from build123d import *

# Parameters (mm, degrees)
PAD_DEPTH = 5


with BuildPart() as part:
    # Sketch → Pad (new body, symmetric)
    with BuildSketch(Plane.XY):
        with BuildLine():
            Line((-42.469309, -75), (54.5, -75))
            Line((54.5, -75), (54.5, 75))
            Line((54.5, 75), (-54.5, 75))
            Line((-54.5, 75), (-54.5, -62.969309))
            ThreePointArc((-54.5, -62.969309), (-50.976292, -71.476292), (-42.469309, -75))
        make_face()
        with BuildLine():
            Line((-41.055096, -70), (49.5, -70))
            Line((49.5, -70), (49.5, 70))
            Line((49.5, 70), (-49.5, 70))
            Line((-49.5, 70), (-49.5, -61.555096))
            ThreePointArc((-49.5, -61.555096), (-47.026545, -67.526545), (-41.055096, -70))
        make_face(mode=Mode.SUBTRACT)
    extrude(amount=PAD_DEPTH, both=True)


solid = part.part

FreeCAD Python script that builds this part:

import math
import FreeCAD as App
import Part
import Sketcher
from FreeCAD import Vector
Q = App.Units.Quantity

doc = App.newDocument("Part")
body = doc.addObject("PartDesign::Body", "Body")

# Sketch on XY plane
sketch1 = body.newObject("Sketcher::SketchObject", "Sketch")
sketch1.AttachmentSupport = (doc.getObject("XY_Plane"), [""])
sketch1.MapMode = "FlatFace"
sketch1.addGeometry([
    Part.LineSegment(Vector(-42, -75, 0), Vector(54, -75, 0)),  # 0
    Part.LineSegment(Vector(54, -75, 0), Vector(54, 75, 0)),  # 1
    Part.LineSegment(Vector(54, 75, 0), Vector(-54, 75, 0)),  # 2
    Part.LineSegment(Vector(-54, 75, 0), Vector(-54, -63, 0)),  # 3
    Part.ArcOfCircle(Part.Circle(Vector(-42, -63, 0), Vector(0, 0, 1), 12), math.radians(-180), math.radians(-90)),  # 4
    Part.LineSegment(Vector(50, -70, 0), Vector(-41, -70, 0)),  # 5
    Part.ArcOfCircle(Part.Circle(Vector(-41, -62, 0), Vector(0, 0, 1), 8), math.radians(180), math.radians(270)),  # 6
    Part.LineSegment(Vector(-50, -62, 0), Vector(-50, 70, 0)),  # 7
    Part.LineSegment(Vector(-50, 70, 0), Vector(50, 70, 0)),  # 8
    Part.LineSegment(Vector(50, 70, 0), Vector(50, -70, 0)),  # 9
], False)
sketch1.addConstraint([
    Sketcher.Constraint("Coincident", 0, 2, 1, 1),
    Sketcher.Constraint("Coincident", 1, 2, 2, 1),
    Sketcher.Constraint("Coincident", 2, 2, 3, 1),
    Sketcher.Constraint("Tangent", 3, 2, 4, 1),
    Sketcher.Constraint("Tangent", 4, 2, 0, 1),
    Sketcher.Constraint("Tangent", 5, 2, 6, 2),
    Sketcher.Constraint("Tangent", 6, 1, 7, 1),
    Sketcher.Constraint("Coincident", 7, 2, 8, 1),
    Sketcher.Constraint("Coincident", 8, 2, 9, 1),
    Sketcher.Constraint("Coincident", 9, 2, 5, 1),
    Sketcher.Constraint("Horizontal", 0),
    Sketcher.Constraint("Vertical", 1),
    Sketcher.Constraint("Horizontal", 2),
    Sketcher.Constraint("Vertical", 3),
    Sketcher.Constraint("Horizontal", 5),
    Sketcher.Constraint("Vertical", 7),
    Sketcher.Constraint("Horizontal", 8),
    Sketcher.Constraint("Vertical", 9),
    Sketcher.Constraint("Symmetric", 0, 2, 2, 2, -1, 1),
    Sketcher.Constraint("Symmetric", 7, 2, 9, 2, -1, 1),
    Sketcher.Constraint("DistanceX", 2, 2, 2, 1, Q("109 mm")),
    Sketcher.Constraint("DistanceX", 8, 1, 8, 2, Q("99 mm")),
    Sketcher.Constraint("DistanceY", 1, 1, 1, 2, Q("150 mm")),
    Sketcher.Constraint("DistanceY", 9, 2, 9, 1, Q("140 mm")),
    Sketcher.Constraint("Radius", 4, Q("12.030692 mm")),
    Sketcher.Constraint("Radius", 6, Q("8.444904 mm")),
])
pad1 = body.newObject("PartDesign::Pad", "Pad")
pad1.Profile = sketch1
pad1.Length = 10
pad1.Midplane = True

doc.recompute()
